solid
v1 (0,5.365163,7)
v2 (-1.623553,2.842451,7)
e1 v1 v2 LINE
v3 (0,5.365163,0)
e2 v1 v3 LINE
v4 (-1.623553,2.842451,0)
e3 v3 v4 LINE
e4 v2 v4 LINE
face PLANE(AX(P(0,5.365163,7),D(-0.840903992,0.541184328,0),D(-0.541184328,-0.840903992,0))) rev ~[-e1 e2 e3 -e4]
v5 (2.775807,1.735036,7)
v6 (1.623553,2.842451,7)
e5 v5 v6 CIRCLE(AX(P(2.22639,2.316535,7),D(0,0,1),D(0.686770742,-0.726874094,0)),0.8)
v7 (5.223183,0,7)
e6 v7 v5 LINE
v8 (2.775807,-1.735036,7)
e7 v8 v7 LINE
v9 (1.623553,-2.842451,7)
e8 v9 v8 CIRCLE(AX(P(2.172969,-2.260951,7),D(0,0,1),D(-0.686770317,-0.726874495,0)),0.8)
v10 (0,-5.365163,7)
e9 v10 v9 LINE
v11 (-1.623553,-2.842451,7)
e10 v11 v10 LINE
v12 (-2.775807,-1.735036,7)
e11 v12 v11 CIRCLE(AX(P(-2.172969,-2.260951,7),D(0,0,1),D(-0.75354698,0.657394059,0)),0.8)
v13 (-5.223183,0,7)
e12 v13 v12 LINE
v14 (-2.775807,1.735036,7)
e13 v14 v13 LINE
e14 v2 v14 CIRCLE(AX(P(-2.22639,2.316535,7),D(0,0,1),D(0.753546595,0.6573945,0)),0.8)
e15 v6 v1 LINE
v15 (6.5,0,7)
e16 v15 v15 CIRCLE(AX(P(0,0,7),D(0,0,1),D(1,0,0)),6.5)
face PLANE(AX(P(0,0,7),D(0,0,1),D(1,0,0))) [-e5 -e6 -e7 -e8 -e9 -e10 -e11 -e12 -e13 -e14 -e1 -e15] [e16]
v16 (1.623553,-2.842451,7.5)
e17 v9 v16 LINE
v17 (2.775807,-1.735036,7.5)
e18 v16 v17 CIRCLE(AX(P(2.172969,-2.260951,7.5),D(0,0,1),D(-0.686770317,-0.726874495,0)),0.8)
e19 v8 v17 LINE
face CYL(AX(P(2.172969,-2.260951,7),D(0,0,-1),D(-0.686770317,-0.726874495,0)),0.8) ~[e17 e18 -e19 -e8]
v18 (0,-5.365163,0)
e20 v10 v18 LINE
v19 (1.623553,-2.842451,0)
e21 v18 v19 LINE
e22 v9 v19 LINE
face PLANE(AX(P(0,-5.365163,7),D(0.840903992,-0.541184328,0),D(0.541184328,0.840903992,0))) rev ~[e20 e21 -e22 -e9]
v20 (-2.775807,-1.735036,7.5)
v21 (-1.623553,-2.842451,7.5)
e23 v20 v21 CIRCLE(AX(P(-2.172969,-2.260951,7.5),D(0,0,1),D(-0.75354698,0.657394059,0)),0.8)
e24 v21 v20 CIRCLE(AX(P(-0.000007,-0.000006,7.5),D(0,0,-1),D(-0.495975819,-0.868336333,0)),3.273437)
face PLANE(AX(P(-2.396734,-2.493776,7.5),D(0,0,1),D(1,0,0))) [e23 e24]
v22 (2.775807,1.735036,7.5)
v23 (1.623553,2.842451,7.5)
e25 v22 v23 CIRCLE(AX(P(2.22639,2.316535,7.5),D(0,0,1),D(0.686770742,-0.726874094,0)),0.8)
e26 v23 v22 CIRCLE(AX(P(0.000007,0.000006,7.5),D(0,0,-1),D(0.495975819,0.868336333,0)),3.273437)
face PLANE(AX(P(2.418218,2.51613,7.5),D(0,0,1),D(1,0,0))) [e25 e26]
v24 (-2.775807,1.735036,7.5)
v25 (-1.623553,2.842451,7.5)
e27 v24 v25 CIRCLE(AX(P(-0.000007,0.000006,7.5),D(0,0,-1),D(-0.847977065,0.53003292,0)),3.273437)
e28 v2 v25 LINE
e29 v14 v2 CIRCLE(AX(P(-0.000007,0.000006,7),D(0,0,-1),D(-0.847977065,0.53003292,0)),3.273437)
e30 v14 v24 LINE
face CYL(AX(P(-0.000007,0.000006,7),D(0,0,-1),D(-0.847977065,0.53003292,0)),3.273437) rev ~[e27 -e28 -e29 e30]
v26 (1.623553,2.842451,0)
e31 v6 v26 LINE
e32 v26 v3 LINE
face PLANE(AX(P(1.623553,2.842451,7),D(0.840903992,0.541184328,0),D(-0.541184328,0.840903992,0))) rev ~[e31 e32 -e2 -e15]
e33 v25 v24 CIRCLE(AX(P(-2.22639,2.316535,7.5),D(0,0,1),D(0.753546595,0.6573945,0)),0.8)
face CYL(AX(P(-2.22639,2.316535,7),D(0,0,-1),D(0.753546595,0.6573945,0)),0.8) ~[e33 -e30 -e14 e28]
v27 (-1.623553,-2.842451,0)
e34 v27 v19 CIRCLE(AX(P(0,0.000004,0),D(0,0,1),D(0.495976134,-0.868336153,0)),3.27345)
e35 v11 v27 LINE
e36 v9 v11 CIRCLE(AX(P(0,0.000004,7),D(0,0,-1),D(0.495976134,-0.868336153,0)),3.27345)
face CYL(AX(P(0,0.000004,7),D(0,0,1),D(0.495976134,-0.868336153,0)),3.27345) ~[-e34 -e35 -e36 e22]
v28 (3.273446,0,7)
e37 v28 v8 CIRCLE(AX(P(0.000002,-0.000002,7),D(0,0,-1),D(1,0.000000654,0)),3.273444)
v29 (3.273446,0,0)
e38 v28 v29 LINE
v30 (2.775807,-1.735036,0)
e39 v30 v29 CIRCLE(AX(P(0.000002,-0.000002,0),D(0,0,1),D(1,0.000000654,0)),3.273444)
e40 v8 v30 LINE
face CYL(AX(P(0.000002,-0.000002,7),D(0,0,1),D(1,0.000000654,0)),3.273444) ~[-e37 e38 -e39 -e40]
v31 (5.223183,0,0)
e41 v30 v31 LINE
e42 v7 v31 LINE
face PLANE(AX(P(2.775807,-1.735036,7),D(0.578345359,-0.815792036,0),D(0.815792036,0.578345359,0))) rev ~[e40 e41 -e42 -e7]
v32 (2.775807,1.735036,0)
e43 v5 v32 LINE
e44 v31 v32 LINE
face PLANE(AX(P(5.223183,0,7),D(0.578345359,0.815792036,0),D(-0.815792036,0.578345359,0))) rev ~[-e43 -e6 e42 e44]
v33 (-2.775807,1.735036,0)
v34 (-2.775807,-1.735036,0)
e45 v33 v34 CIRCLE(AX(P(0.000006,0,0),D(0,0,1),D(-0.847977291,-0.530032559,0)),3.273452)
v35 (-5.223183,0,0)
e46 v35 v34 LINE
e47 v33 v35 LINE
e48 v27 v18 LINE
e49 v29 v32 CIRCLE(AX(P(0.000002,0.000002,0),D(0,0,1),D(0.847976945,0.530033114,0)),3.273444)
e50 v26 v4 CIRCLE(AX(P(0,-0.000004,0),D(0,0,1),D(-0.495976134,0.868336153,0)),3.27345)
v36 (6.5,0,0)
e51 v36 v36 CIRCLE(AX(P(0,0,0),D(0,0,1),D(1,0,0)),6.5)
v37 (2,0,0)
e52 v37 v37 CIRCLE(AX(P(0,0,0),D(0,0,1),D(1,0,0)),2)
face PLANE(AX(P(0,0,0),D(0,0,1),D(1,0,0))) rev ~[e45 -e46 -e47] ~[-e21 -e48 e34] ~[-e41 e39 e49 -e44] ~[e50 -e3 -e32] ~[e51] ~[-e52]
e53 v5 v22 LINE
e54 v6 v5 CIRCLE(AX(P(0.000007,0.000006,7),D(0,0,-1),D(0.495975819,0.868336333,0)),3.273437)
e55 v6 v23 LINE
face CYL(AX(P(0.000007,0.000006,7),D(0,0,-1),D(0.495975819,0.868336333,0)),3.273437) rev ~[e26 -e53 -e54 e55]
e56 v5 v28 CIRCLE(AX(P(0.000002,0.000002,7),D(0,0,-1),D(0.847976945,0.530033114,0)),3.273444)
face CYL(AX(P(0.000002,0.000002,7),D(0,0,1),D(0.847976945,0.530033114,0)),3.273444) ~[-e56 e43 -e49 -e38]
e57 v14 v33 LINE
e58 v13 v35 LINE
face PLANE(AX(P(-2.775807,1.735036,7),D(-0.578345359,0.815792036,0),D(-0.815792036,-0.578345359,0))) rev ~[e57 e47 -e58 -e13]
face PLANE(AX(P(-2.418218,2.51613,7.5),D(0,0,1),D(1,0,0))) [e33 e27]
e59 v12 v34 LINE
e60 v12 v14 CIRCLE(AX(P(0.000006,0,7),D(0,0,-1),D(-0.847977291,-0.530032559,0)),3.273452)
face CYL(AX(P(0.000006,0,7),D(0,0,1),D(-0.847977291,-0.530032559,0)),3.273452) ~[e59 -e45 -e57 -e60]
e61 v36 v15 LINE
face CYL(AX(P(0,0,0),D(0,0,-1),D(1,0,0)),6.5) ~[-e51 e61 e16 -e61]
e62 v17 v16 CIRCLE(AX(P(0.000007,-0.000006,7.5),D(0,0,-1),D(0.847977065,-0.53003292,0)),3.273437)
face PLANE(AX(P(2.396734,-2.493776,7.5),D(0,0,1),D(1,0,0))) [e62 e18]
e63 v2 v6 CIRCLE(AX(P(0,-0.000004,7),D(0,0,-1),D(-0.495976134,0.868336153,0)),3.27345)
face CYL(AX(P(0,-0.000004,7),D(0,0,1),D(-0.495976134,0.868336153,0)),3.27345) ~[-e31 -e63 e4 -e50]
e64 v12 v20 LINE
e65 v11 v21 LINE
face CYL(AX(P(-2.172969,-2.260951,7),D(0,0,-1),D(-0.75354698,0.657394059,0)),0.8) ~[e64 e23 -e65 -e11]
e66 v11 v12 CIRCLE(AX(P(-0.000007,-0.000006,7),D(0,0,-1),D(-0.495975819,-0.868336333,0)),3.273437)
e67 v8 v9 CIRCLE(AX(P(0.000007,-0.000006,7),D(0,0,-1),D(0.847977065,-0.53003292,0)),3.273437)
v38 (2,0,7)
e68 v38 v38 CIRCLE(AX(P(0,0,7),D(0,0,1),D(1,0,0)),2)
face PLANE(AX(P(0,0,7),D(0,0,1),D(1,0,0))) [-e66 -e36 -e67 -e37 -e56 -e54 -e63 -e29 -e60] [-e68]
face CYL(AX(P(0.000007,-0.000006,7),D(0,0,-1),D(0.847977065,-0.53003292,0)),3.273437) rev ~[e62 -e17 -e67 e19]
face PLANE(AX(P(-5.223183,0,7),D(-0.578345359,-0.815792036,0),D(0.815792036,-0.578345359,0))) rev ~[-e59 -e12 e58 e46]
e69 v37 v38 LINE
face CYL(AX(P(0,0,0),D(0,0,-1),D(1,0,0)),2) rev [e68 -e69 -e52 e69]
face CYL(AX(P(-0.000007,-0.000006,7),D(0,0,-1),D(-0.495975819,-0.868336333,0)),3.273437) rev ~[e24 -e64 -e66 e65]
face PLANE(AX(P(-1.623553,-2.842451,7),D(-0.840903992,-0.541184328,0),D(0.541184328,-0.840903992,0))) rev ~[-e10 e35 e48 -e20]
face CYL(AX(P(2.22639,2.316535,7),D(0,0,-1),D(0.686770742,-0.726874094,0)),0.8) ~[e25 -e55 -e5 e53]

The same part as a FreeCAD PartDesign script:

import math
import FreeCAD as App
import Part
import Sketcher

V = App.Vector
Q = App.Units.Quantity

doc = App.newDocument("Part")
body = doc.addObject("PartDesign::Body", "Body")

# Sketch on XY plane
sketch1 = doc.addObject("Sketcher::SketchObject", "Sketch")
body.addObject(sketch1)
sketch1.AttachmentSupport = (doc.XY_Plane, [""])
sketch1.MapMode = "FlatFace"
sketch1.addGeometry([
    Part.Circle(V(0, 0, 0), V(0, 0, 1), 6.5),
    Part.Circle(V(0, 0, 0), V(0, 0, 1), 2),
], False)
sketch1.addConstraint([
    Sketcher.Constraint("Coincident", 0, 3, -1, 1),
    Sketcher.Constraint("Coincident", 1, 3, -1, 1),
    Sketcher.Constraint("Diameter", 0, Q("13 mm")),
    Sketcher.Constraint("Diameter", 1, Q("4 mm")),
])
pad1 = doc.addObject("PartDesign::Pad", "Pad")
body.addObject(pad1)
pad1.Profile = sketch1
pad1.Length = 7

# Sketch on XY plane
sketch2 = doc.addObject("Sketcher::SketchObject", "Sketch001")
body.addObject(sketch2)
sketch2.AttachmentSupport = (doc.XY_Plane, [""])
sketch2.MapMode = "FlatFace"
sketch2.AttachmentOffset = App.Placement(V(0, 0, 7), App.Rotation())
sketch2.addGeometry([
    Part.ArcOfCircle(Part.Circle(V(0.000006, 0, 0), V(0, 0, 1), 3.273452), math.radians(147.992345), math.radians(212.007655)),  # 0
    Part.LineSegment(V(-2.775807, 1.735036, 0), V(-5.223183, 0, 0)),  # 1
    Part.LineSegment(V(-5.223183, 0, 0), V(-2.775807, -1.735036, 0)),  # 2
    Part.LineSegment(V(0, -5.365163, 0), V(1.623553, -2.842451, 0)),  # 3
    Part.ArcOfCircle(Part.Circle(V(0, 0.000004, 0), V(0, 0, 1), 3.27345), math.radians(-119.734138), math.radians(-60.265862)),  # 4
    Part.LineSegment(V(-1.623553, -2.842451, 0), V(0, -5.365163, 0)),  # 5
    Part.ArcOfCircle(Part.Circle(V(0.000002, 0.000002, 0), V(0, 0, 1), 3.273444), math.radians(-0.000037), math.radians(32.007692)),  # 6
    Part.ArcOfCircle(Part.Circle(V(0.000002, -0.000002, 0), V(0, 0, 1), 3.273444), math.radians(-32.007692), math.radians(0.000037)),  # 7
    Part.LineSegment(V(2.775807, -1.735036, 0), V(5.223183, 0, 0)),  # 8
    Part.LineSegment(V(5.223183, 0, 0), V(2.775807, 1.735036, 0)),  # 9
    Part.ArcOfCircle(Part.Circle(V(0, -0.000004, 0), V(0, 0, 1), 3.27345), math.radians(60.265862), math.radians(119.734138)),  # 10
    Part.LineSegment(V(1.623553, 2.842451, 0), V(0, 5.365163, 0)),  # 11
    Part.LineSegment(V(0, 5.365163, 0), V(-1.623553, 2.842451, 0)),  # 12
], False)
sketch2.addConstraint([
    Sketcher.Constraint("Coincident", 0, 1, 1, 1),
    Sketcher.Constraint("Coincident", 1, 2, 2, 1),
    Sketcher.Constraint("Coincident", 2, 2, 0, 2),
    Sketcher.Constraint("Coincident", 3, 2, 4, 2),
    Sketcher.Constraint("Coincident", 4, 1, 5, 1),
    Sketcher.Constraint("Coincident", 5, 2, 3, 1),
    Sketcher.Constraint("Coincident", 6, 1, 7, 2),
    Sketcher.Constraint("Coincident", 7, 1, 8, 1),
    Sketcher.Constraint("Coincident", 8, 2, 9, 1),
    Sketcher.Constraint("Coincident", 9, 2, 6, 2),
    Sketcher.Constraint("Coincident", 10, 1, 11, 1),
    Sketcher.Constraint("Coincident", 11, 2, 12, 1),
    Sketcher.Constraint("Coincident", 12, 2, 10, 2),
    Sketcher.Constraint("Coincident", 0, 3, -1, 1),
    Sketcher.Constraint("Coincident", 4, 3, -1, 1),
    Sketcher.Constraint("Coincident", 6, 3, -1, 1),
    Sketcher.Constraint("Coincident", 7, 3, -1, 1),
    Sketcher.Constraint("Coincident", 10, 3, -1, 1),
    Sketcher.Constraint("PointOnObject", 1, 2, -1),
    Sketcher.Constraint("PointOnObject", 5, 2, -2),
    Sketcher.Constraint("PointOnObject", 6, 1, -1),
    Sketcher.Constraint("PointOnObject", 8, 2, -1),
    Sketcher.Constraint("PointOnObject", 11, 2, -2),
    Sketcher.Constraint("Distance", 1, Q("3 mm")),
    Sketcher.Constraint("Distance", 2, Q("3 mm")),
    Sketcher.Constraint("Distance", 3, Q("3 mm")),
    Sketcher.Constraint("Distance", 5, Q("3 mm")),
    Sketcher.Constraint("Distance", 8, Q("3 mm")),
    Sketcher.Constraint("Distance", 9, Q("3 mm")),
    Sketcher.Constraint("Distance", 11, Q("3 mm")),
    Sketcher.Constraint("Distance", 12, Q("3 mm")),
    Sketcher.Constraint("Radius", 0, Q("3.273452 mm")),
    Sketcher.Constraint("Radius", 4, Q("3.27345 mm")),
    Sketcher.Constraint("Radius", 10, Q("3.27345 mm")),
    Sketcher.Constraint("Radius", 6, Q("3.273444 mm")),
    Sketcher.Constraint("DistanceX", 0, 3, 7, 1, Q("2.775801 mm")),
    Sketcher.Constraint("DistanceY", 3, 2, -1, 1, Q("2.842451 mm")),
    Sketcher.Constraint("DistanceY", -1, 1, 10, 1, Q("2.842451 mm")),
    Sketcher.Constraint("DistanceX", 0, 1, 6, 3, Q("2.775809 mm")),
])
pocket1 = doc.addObject("PartDesign::Pocket", "Pocket")
body.addObject(pocket1)
pocket1.Profile = sketch2
pocket1.Length = 25

# Sketch on XY plane
sketch3 = doc.addObject("Sketcher::SketchObject", "Sketch002")
body.addObject(sketch3)
sketch3.AttachmentSupport = (doc.XY_Plane, [""])
sketch3.MapMode = "FlatFace"
sketch3.AttachmentOffset = App.Placement(V(0, 0, 7), App.Rotation())
sketch3.addGeometry([
    Part.ArcOfCircle(Part.Circle(V(0, 0, 0), V(0, 0, 1), 3.3), math.radians(32), math.radians(60)),  # 0
    Part.ArcOfCircle(Part.Circle(V(2.2, 2.3, 0), V(0, 0, 1), 0.8), math.radians(-47), math.radians(139)),  # 1
    Part.ArcOfCircle(Part.Circle(V(0, 0, 0), V(0, 0, 1), 3.3), math.radians(120), math.radians(148)),  # 2
    Part.ArcOfCircle(Part.Circle(V(-2.2, 2.3, 0), V(0, 0, 1), 0.8), math.radians(41), math.radians(227)),  # 3
    Part.ArcOfCircle(Part.Circle(V(-2.2, -2.3, 0), V(0, 0, 1), 0.8), math.radians(139), math.radians(313)),  # 4
    Part.ArcOfCircle(Part.Circle(V(0, 0, 0), V(0, 0, 1), 3.3), math.radians(-148), math.radians(-120)),  # 5
    Part.ArcOfCircle(Part.Circle(V(2.2, -2.3, 0), V(0, 0, 1), 0.8), math.radians(-133), math.radians(41)),  # 6
    Part.ArcOfCircle(Part.Circle(V(0, 0, 0), V(0, 0, 1), 3.3), math.radians(-60), math.radians(-32)),  # 7
], False)
sketch3.addConstraint([
    Sketcher.Constraint("Coincident", 0, 1, 1, 1),
    Sketcher.Constraint("Coincident", 1, 2, 0, 2),
    Sketcher.Constraint("Coincident", 2, 1, 3, 1),
    Sketcher.Constraint("Coincident", 3, 2, 2, 2),
    Sketcher.Constraint("Coincident", 4, 1, 5, 1),
    Sketcher.Constraint("Coincident", 5, 2, 4, 2),
    Sketcher.Constraint("Coincident", 6, 1, 7, 1),
    Sketcher.Constraint("Coincident", 7, 2, 6, 2),
    Sketcher.Constraint("Coincident", 0, 3, -1, 1),
    Sketcher.Constraint("Coincident", 2, 3, -1, 1),
    Sketcher.Constraint("Coincident", 5, 3, -1, 1),
    Sketcher.Constraint("Coincident", 7, 3, -1, 1),
    Sketcher.Constraint("Equal", 0, 2),
    Sketcher.Constraint("Equal", 1, 3),
    Sketcher.Constraint("Equal", 3, 4),
    Sketcher.Constraint("Equal", 2, 5),
    Sketcher.Constraint("Equal", 4, 6),
    Sketcher.Constraint("Equal", 5, 7),
    Sketcher.Constraint("Symmetric", 1, 3, 3, 3, -2),
    Sketcher.Constraint("Symmetric", 4, 3, 6, 3, -2),
    Sketcher.Constraint("Vertical", 3, 2, 4, 1),
    Sketcher.Constraint("Vertical", 2, 1, 5, 2),
    Sketcher.Constraint("Radius", 1, Q("0.8 mm")),
    Sketcher.Constraint("Radius", 0, Q("3.273437 mm")),
    Sketcher.Constraint("DistanceY", 0, 1, 1, 3, Q("0.581499 mm")),
    Sketcher.Constraint("DistanceX", 0, 3, 0, 1, Q("2.7758 mm")),
])
pad2 = doc.addObject("PartDesign::Pad", "Pad001")
body.addObject(pad2)
pad2.Profile = sketch3
pad2.Length = 0.5

doc.recompute()
